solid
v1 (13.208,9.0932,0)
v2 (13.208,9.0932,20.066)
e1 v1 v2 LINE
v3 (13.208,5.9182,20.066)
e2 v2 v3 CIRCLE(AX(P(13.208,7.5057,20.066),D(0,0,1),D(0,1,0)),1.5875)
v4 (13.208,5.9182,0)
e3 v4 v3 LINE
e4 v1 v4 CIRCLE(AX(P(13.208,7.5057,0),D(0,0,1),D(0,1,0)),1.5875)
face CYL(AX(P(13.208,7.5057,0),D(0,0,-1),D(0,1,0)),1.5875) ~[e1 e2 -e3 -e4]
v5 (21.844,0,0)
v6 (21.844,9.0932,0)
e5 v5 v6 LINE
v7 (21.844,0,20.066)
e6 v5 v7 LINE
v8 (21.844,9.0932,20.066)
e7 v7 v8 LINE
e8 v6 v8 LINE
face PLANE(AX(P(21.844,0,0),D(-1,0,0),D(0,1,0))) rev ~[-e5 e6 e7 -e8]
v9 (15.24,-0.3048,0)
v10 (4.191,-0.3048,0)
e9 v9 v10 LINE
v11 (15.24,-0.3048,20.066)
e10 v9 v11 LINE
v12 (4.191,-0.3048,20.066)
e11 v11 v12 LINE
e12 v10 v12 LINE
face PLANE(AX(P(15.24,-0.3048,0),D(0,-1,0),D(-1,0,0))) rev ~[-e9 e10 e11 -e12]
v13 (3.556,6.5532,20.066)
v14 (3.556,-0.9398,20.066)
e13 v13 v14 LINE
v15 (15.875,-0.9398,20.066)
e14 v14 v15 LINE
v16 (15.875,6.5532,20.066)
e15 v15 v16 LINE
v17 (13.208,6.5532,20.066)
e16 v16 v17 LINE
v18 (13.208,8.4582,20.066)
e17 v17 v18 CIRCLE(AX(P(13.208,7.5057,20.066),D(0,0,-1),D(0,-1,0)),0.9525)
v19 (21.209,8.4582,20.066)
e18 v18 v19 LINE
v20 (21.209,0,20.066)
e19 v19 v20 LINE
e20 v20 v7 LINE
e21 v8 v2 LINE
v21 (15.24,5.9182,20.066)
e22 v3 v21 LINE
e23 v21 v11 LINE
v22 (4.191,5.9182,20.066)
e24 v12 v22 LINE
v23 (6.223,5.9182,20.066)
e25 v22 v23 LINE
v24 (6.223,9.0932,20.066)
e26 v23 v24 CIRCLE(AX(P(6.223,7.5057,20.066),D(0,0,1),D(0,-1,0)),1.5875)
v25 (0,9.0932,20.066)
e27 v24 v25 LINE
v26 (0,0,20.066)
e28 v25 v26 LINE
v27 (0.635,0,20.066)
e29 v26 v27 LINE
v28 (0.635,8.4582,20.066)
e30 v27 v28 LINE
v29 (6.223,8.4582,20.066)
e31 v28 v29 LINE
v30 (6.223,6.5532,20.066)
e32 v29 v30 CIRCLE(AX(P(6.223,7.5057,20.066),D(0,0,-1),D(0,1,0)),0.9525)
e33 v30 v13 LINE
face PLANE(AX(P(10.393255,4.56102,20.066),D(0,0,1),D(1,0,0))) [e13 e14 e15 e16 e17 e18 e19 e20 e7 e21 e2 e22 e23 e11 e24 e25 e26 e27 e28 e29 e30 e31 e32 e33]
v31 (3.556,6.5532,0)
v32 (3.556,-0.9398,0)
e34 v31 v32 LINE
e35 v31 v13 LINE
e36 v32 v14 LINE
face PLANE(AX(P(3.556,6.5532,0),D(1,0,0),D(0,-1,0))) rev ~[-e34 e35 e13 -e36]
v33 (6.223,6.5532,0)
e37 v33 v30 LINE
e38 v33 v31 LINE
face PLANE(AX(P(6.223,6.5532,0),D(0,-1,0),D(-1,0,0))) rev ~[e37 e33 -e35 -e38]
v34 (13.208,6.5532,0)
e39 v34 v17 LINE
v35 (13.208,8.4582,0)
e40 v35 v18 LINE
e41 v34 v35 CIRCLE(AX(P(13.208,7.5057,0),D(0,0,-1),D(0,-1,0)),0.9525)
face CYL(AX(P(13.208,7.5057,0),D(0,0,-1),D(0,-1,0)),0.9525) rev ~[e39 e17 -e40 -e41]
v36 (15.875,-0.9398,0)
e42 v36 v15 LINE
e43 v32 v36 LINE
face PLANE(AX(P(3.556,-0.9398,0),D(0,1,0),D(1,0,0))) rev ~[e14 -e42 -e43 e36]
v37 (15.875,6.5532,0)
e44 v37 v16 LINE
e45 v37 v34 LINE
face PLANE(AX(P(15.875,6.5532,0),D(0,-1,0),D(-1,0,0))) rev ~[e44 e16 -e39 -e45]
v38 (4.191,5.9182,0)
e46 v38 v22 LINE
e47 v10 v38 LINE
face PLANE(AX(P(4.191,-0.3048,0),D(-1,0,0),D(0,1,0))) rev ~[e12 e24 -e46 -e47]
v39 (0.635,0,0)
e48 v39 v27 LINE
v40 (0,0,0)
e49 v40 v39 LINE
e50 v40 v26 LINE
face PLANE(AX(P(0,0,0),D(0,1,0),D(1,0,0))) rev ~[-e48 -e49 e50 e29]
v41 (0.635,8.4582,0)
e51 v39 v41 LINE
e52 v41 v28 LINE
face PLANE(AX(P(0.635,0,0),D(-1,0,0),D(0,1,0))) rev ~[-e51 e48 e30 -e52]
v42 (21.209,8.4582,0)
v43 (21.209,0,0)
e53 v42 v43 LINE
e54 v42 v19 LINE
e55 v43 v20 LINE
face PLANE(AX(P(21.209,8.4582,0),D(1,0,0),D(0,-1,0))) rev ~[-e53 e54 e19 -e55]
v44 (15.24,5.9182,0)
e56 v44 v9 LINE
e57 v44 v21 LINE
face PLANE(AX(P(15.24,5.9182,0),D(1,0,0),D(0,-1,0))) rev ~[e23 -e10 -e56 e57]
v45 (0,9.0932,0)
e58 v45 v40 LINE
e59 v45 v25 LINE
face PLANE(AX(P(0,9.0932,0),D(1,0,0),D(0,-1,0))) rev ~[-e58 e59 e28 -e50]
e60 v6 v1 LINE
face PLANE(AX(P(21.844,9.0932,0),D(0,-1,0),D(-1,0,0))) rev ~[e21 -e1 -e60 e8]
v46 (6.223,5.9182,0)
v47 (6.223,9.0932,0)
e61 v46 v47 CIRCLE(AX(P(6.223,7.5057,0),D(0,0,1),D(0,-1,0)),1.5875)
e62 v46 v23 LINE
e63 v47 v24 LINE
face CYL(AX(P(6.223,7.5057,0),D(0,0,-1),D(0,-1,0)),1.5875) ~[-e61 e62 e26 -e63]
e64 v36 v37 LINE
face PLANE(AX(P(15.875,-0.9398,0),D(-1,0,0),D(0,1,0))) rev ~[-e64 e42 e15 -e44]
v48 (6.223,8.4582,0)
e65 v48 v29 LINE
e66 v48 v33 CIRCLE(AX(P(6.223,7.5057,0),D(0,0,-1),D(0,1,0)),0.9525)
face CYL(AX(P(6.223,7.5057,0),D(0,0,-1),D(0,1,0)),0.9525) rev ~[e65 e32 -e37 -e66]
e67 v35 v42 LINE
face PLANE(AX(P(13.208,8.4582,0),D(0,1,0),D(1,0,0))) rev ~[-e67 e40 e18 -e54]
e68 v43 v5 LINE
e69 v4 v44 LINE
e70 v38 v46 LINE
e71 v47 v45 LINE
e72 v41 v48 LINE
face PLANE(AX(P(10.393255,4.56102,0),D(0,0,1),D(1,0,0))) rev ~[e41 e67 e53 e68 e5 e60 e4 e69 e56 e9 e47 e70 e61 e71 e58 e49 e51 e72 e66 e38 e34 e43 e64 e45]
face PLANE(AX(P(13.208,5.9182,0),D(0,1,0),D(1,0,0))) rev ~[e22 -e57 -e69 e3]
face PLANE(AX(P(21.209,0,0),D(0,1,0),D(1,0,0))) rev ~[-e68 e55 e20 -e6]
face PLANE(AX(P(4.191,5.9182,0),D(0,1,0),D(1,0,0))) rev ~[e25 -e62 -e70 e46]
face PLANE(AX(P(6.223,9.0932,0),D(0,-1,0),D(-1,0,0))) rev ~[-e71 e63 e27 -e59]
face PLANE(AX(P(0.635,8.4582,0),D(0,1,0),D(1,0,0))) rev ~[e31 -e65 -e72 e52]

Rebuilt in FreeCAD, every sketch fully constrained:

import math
import FreeCAD as App
import Part
import Sketcher
Q = App.Units.Quantity

doc = App.newDocument("Part")
body = doc.addObject("PartDesign::Body", "Body")

sketch1 = body.newObject("Sketcher::SketchObject", "Sketch")
sketch1.AttachmentSupport = (doc.getObject("XY_Plane"), [""])
sketch1.MapMode = "FlatFace"
sketch1.addGeometry([
    Part.LineSegment(App.Vector(0, 9.0932, 0), App.Vector(0, 0, 0)),
    Part.LineSegment(App.Vector(0, 0, 0), App.Vector(0.635, 0, 0)),
    Part.LineSegment(App.Vector(0.635, 0, 0), App.Vector(0.635, 8.4582, 0)),
    Part.LineSegment(App.Vector(0.635, 8.4582, 0), App.Vector(6.223, 8.4582, 0)),
    Part.ArcOfCircle(Part.Circle(App.Vector(6.223, 7.5057, 0), App.Vector(0, 0, 1), 0.9525), math.radians(-90), math.radians(90)),
    Part.LineSegment(App.Vector(6.223, 6.5532, 0), App.Vector(3.556, 6.5532, 0)),
    Part.LineSegment(App.Vector(3.556, 6.5532, 0), App.Vector(3.556, -0.9398, 0)),
    Part.LineSegment(App.Vector(3.556, -0.9398, 0), App.Vector(15.875, -0.9398, 0)),
    Part.LineSegment(App.Vector(15.875, -0.9398, 0), App.Vector(15.875, 6.5532, 0)),
    Part.LineSegment(App.Vector(15.875, 6.5532, 0), App.Vector(13.208, 6.5532, 0)),
    Part.ArcOfCircle(Part.Circle(App.Vector(13.208, 7.5057, 0), App.Vector(0, 0, 1), 0.9525), math.radians(90), math.radians(270)),
    Part.LineSegment(App.Vector(13.208, 8.4582, 0), App.Vector(21.209, 8.4582, 0)),
    Part.LineSegment(App.Vector(21.209, 8.4582, 0), App.Vector(21.209, 0, 0)),
    Part.LineSegment(App.Vector(21.209, 0, 0), App.Vector(21.844, 0, 0)),
    Part.LineSegment(App.Vector(21.844, 0, 0), App.Vector(21.844, 9.0932, 0)),
    Part.LineSegment(App.Vector(21.844, 9.0932, 0), App.Vector(13.208, 9.0932, 0)),
    Part.ArcOfCircle(Part.Circle(App.Vector(13.208, 7.5057, 0), App.Vector(0, 0, 1), 1.5875), math.radians(90), math.radians(270)),
    Part.LineSegment(App.Vector(13.208, 5.9182, 0), App.Vector(15.24, 5.9182, 0)),
    Part.LineSegment(App.Vector(15.24, 5.9182, 0), App.Vector(15.24, -0.3048, 0)),
    Part.LineSegment(App.Vector(15.24, -0.3048, 0), App.Vector(4.191, -0.3048, 0)),
    Part.LineSegment(App.Vector(4.191, -0.3048, 0), App.Vector(4.191, 5.9182, 0)),
    Part.LineSegment(App.Vector(4.191, 5.9182, 0), App.Vector(6.223, 5.9182, 0)),
    Part.ArcOfCircle(Part.Circle(App.Vector(6.223, 7.5057, 0), App.Vector(0, 0, 1), 1.5875), math.radians(-90), math.radians(90)),
    Part.LineSegment(App.Vector(6.223, 9.0932, 0), App.Vector(0, 9.0932, 0)),
], False)
sketch1.addConstraint([
    Sketcher.Constraint("Coincident", 0, 2, 1, 1),
    Sketcher.Constraint("Coincident", 1, 2, 2, 1),
    Sketcher.Constraint("Coincident", 2, 2, 3, 1),
    Sketcher.Constraint("Tangent", 3, 2, 4, 2),
    Sketcher.Constraint("Tangent", 4, 1, 5, 1),
    Sketcher.Constraint("Coincident", 5, 2, 6, 1),
    Sketcher.Constraint("Coincident", 6, 2, 7, 1),
    Sketcher.Constraint("Coincident", 7, 2, 8, 1),
    Sketcher.Constraint("Coincident", 8, 2, 9, 1),
    Sketcher.Constraint("Tangent", 9, 2, 10, 2),
    Sketcher.Constraint("Tangent", 10, 1, 11, 1),
    Sketcher.Constraint("Coincident", 11, 2, 12, 1),
    Sketcher.Constraint("Coincident", 12, 2, 13, 1),
    Sketcher.Constraint("Coincident", 13, 2, 14, 1),
    Sketcher.Constraint("Coincident", 14, 2, 15, 1),
    Sketcher.Constraint("Tangent", 15, 2, 16, 1),
    Sketcher.Constraint("Tangent", 16, 2, 17, 1),
    Sketcher.Constraint("Coincident", 17, 2, 18, 1),
    Sketcher.Constraint("Coincident", 18, 2, 19, 1),
    Sketcher.Constraint("Coincident", 19, 2, 20, 1),
    Sketcher.Constraint("Coincident", 20, 2, 21, 1),
    Sketcher.Constraint("Tangent", 21, 2, 22, 1),
    Sketcher.Constraint("Tangent", 22, 2, 23, 1),
    Sketcher.Constraint("Coincident", 23, 2, 0, 1),
    Sketcher.Constraint("Vertical", 0),
    Sketcher.Constraint("Horizontal", 1),
    Sketcher.Constraint("Vertical", 2),
    Sketcher.Constraint("Horizontal", 3),
    Sketcher.Constraint("Horizontal", 5),
    Sketcher.Constraint("Vertical", 6),
    Sketcher.Constraint("Horizontal", 7),
    Sketcher.Constraint("Vertical", 8),
    Sketcher.Constraint("Horizontal", 9),
    Sketcher.Constraint("Horizontal", 11),
    Sketcher.Constraint("Vertical", 12),
    Sketcher.Constraint("Horizontal", 13),
    Sketcher.Constraint("Vertical", 14),
    Sketcher.Constraint("Horizontal", 15),
    Sketcher.Constraint("Horizontal", 17),
    Sketcher.Constraint("Vertical", 18),
    Sketcher.Constraint("Horizontal", 19),
    Sketcher.Constraint("Vertical", 20),
    Sketcher.Constraint("Horizontal", 21),
    Sketcher.Constraint("Horizontal", 23),
    Sketcher.Constraint("Coincident", 0, 2, -1, 1),
    Sketcher.Constraint("Coincident", 16, 3, 10, 3),
    Sketcher.Constraint("Coincident", 22, 3, 4, 3),
    Sketcher.Constraint("Equal", 4, 10),
    Sketcher.Constraint("Equal", 16, 22),
    Sketcher.Constraint("PointOnObject", 12, 2, -1),
    Sketcher.Constraint("Horizontal", 4, 3, 10, 3),
    Sketcher.Constraint("Equal", 5, 9),
    Sketcher.Constraint("Equal", 1, 13),
    Sketcher.Constraint("Equal", 17, 21),
    Sketcher.Constraint("Equal", 23, 18),
    Sketcher.Constraint("Radius", 16, Q("0.0625 in")),
    Sketcher.Constraint("DistanceX", 3, 1, 3, 2, Q("0.22 in")),
    Sketcher.Constraint("DistanceX", 15, 2, 15, 1, Q("0.34 in")),
    Sketcher.Constraint("DistanceX", 17, 1, 17, 2, Q("0.08 in")),
    Sketcher.Constraint("DistanceX", -1, 1, 17, 2, Q("0.6 in")),
    Sketcher.Constraint("Radius", 4, Q("0.0375 in")),
    Sketcher.Constraint("DistanceX", 1, 1, 1, 2, Q("0.025 in")),
    Sketcher.Constraint("DistanceX", 5, 2, 5, 1, Q("0.105 in")),
    Sketcher.Constraint("DistanceY", 0, 2, 0, 1, Q("0.358 in")),
    Sketcher.Constraint("DistanceY", 6, 2, 6, 1, Q("0.295 in")),
])
pad1 = body.newObject("PartDesign::Pad", "Pad")
pad1.Profile = sketch1
pad1.Length = Q("0.79 in")

doc.recompute()
